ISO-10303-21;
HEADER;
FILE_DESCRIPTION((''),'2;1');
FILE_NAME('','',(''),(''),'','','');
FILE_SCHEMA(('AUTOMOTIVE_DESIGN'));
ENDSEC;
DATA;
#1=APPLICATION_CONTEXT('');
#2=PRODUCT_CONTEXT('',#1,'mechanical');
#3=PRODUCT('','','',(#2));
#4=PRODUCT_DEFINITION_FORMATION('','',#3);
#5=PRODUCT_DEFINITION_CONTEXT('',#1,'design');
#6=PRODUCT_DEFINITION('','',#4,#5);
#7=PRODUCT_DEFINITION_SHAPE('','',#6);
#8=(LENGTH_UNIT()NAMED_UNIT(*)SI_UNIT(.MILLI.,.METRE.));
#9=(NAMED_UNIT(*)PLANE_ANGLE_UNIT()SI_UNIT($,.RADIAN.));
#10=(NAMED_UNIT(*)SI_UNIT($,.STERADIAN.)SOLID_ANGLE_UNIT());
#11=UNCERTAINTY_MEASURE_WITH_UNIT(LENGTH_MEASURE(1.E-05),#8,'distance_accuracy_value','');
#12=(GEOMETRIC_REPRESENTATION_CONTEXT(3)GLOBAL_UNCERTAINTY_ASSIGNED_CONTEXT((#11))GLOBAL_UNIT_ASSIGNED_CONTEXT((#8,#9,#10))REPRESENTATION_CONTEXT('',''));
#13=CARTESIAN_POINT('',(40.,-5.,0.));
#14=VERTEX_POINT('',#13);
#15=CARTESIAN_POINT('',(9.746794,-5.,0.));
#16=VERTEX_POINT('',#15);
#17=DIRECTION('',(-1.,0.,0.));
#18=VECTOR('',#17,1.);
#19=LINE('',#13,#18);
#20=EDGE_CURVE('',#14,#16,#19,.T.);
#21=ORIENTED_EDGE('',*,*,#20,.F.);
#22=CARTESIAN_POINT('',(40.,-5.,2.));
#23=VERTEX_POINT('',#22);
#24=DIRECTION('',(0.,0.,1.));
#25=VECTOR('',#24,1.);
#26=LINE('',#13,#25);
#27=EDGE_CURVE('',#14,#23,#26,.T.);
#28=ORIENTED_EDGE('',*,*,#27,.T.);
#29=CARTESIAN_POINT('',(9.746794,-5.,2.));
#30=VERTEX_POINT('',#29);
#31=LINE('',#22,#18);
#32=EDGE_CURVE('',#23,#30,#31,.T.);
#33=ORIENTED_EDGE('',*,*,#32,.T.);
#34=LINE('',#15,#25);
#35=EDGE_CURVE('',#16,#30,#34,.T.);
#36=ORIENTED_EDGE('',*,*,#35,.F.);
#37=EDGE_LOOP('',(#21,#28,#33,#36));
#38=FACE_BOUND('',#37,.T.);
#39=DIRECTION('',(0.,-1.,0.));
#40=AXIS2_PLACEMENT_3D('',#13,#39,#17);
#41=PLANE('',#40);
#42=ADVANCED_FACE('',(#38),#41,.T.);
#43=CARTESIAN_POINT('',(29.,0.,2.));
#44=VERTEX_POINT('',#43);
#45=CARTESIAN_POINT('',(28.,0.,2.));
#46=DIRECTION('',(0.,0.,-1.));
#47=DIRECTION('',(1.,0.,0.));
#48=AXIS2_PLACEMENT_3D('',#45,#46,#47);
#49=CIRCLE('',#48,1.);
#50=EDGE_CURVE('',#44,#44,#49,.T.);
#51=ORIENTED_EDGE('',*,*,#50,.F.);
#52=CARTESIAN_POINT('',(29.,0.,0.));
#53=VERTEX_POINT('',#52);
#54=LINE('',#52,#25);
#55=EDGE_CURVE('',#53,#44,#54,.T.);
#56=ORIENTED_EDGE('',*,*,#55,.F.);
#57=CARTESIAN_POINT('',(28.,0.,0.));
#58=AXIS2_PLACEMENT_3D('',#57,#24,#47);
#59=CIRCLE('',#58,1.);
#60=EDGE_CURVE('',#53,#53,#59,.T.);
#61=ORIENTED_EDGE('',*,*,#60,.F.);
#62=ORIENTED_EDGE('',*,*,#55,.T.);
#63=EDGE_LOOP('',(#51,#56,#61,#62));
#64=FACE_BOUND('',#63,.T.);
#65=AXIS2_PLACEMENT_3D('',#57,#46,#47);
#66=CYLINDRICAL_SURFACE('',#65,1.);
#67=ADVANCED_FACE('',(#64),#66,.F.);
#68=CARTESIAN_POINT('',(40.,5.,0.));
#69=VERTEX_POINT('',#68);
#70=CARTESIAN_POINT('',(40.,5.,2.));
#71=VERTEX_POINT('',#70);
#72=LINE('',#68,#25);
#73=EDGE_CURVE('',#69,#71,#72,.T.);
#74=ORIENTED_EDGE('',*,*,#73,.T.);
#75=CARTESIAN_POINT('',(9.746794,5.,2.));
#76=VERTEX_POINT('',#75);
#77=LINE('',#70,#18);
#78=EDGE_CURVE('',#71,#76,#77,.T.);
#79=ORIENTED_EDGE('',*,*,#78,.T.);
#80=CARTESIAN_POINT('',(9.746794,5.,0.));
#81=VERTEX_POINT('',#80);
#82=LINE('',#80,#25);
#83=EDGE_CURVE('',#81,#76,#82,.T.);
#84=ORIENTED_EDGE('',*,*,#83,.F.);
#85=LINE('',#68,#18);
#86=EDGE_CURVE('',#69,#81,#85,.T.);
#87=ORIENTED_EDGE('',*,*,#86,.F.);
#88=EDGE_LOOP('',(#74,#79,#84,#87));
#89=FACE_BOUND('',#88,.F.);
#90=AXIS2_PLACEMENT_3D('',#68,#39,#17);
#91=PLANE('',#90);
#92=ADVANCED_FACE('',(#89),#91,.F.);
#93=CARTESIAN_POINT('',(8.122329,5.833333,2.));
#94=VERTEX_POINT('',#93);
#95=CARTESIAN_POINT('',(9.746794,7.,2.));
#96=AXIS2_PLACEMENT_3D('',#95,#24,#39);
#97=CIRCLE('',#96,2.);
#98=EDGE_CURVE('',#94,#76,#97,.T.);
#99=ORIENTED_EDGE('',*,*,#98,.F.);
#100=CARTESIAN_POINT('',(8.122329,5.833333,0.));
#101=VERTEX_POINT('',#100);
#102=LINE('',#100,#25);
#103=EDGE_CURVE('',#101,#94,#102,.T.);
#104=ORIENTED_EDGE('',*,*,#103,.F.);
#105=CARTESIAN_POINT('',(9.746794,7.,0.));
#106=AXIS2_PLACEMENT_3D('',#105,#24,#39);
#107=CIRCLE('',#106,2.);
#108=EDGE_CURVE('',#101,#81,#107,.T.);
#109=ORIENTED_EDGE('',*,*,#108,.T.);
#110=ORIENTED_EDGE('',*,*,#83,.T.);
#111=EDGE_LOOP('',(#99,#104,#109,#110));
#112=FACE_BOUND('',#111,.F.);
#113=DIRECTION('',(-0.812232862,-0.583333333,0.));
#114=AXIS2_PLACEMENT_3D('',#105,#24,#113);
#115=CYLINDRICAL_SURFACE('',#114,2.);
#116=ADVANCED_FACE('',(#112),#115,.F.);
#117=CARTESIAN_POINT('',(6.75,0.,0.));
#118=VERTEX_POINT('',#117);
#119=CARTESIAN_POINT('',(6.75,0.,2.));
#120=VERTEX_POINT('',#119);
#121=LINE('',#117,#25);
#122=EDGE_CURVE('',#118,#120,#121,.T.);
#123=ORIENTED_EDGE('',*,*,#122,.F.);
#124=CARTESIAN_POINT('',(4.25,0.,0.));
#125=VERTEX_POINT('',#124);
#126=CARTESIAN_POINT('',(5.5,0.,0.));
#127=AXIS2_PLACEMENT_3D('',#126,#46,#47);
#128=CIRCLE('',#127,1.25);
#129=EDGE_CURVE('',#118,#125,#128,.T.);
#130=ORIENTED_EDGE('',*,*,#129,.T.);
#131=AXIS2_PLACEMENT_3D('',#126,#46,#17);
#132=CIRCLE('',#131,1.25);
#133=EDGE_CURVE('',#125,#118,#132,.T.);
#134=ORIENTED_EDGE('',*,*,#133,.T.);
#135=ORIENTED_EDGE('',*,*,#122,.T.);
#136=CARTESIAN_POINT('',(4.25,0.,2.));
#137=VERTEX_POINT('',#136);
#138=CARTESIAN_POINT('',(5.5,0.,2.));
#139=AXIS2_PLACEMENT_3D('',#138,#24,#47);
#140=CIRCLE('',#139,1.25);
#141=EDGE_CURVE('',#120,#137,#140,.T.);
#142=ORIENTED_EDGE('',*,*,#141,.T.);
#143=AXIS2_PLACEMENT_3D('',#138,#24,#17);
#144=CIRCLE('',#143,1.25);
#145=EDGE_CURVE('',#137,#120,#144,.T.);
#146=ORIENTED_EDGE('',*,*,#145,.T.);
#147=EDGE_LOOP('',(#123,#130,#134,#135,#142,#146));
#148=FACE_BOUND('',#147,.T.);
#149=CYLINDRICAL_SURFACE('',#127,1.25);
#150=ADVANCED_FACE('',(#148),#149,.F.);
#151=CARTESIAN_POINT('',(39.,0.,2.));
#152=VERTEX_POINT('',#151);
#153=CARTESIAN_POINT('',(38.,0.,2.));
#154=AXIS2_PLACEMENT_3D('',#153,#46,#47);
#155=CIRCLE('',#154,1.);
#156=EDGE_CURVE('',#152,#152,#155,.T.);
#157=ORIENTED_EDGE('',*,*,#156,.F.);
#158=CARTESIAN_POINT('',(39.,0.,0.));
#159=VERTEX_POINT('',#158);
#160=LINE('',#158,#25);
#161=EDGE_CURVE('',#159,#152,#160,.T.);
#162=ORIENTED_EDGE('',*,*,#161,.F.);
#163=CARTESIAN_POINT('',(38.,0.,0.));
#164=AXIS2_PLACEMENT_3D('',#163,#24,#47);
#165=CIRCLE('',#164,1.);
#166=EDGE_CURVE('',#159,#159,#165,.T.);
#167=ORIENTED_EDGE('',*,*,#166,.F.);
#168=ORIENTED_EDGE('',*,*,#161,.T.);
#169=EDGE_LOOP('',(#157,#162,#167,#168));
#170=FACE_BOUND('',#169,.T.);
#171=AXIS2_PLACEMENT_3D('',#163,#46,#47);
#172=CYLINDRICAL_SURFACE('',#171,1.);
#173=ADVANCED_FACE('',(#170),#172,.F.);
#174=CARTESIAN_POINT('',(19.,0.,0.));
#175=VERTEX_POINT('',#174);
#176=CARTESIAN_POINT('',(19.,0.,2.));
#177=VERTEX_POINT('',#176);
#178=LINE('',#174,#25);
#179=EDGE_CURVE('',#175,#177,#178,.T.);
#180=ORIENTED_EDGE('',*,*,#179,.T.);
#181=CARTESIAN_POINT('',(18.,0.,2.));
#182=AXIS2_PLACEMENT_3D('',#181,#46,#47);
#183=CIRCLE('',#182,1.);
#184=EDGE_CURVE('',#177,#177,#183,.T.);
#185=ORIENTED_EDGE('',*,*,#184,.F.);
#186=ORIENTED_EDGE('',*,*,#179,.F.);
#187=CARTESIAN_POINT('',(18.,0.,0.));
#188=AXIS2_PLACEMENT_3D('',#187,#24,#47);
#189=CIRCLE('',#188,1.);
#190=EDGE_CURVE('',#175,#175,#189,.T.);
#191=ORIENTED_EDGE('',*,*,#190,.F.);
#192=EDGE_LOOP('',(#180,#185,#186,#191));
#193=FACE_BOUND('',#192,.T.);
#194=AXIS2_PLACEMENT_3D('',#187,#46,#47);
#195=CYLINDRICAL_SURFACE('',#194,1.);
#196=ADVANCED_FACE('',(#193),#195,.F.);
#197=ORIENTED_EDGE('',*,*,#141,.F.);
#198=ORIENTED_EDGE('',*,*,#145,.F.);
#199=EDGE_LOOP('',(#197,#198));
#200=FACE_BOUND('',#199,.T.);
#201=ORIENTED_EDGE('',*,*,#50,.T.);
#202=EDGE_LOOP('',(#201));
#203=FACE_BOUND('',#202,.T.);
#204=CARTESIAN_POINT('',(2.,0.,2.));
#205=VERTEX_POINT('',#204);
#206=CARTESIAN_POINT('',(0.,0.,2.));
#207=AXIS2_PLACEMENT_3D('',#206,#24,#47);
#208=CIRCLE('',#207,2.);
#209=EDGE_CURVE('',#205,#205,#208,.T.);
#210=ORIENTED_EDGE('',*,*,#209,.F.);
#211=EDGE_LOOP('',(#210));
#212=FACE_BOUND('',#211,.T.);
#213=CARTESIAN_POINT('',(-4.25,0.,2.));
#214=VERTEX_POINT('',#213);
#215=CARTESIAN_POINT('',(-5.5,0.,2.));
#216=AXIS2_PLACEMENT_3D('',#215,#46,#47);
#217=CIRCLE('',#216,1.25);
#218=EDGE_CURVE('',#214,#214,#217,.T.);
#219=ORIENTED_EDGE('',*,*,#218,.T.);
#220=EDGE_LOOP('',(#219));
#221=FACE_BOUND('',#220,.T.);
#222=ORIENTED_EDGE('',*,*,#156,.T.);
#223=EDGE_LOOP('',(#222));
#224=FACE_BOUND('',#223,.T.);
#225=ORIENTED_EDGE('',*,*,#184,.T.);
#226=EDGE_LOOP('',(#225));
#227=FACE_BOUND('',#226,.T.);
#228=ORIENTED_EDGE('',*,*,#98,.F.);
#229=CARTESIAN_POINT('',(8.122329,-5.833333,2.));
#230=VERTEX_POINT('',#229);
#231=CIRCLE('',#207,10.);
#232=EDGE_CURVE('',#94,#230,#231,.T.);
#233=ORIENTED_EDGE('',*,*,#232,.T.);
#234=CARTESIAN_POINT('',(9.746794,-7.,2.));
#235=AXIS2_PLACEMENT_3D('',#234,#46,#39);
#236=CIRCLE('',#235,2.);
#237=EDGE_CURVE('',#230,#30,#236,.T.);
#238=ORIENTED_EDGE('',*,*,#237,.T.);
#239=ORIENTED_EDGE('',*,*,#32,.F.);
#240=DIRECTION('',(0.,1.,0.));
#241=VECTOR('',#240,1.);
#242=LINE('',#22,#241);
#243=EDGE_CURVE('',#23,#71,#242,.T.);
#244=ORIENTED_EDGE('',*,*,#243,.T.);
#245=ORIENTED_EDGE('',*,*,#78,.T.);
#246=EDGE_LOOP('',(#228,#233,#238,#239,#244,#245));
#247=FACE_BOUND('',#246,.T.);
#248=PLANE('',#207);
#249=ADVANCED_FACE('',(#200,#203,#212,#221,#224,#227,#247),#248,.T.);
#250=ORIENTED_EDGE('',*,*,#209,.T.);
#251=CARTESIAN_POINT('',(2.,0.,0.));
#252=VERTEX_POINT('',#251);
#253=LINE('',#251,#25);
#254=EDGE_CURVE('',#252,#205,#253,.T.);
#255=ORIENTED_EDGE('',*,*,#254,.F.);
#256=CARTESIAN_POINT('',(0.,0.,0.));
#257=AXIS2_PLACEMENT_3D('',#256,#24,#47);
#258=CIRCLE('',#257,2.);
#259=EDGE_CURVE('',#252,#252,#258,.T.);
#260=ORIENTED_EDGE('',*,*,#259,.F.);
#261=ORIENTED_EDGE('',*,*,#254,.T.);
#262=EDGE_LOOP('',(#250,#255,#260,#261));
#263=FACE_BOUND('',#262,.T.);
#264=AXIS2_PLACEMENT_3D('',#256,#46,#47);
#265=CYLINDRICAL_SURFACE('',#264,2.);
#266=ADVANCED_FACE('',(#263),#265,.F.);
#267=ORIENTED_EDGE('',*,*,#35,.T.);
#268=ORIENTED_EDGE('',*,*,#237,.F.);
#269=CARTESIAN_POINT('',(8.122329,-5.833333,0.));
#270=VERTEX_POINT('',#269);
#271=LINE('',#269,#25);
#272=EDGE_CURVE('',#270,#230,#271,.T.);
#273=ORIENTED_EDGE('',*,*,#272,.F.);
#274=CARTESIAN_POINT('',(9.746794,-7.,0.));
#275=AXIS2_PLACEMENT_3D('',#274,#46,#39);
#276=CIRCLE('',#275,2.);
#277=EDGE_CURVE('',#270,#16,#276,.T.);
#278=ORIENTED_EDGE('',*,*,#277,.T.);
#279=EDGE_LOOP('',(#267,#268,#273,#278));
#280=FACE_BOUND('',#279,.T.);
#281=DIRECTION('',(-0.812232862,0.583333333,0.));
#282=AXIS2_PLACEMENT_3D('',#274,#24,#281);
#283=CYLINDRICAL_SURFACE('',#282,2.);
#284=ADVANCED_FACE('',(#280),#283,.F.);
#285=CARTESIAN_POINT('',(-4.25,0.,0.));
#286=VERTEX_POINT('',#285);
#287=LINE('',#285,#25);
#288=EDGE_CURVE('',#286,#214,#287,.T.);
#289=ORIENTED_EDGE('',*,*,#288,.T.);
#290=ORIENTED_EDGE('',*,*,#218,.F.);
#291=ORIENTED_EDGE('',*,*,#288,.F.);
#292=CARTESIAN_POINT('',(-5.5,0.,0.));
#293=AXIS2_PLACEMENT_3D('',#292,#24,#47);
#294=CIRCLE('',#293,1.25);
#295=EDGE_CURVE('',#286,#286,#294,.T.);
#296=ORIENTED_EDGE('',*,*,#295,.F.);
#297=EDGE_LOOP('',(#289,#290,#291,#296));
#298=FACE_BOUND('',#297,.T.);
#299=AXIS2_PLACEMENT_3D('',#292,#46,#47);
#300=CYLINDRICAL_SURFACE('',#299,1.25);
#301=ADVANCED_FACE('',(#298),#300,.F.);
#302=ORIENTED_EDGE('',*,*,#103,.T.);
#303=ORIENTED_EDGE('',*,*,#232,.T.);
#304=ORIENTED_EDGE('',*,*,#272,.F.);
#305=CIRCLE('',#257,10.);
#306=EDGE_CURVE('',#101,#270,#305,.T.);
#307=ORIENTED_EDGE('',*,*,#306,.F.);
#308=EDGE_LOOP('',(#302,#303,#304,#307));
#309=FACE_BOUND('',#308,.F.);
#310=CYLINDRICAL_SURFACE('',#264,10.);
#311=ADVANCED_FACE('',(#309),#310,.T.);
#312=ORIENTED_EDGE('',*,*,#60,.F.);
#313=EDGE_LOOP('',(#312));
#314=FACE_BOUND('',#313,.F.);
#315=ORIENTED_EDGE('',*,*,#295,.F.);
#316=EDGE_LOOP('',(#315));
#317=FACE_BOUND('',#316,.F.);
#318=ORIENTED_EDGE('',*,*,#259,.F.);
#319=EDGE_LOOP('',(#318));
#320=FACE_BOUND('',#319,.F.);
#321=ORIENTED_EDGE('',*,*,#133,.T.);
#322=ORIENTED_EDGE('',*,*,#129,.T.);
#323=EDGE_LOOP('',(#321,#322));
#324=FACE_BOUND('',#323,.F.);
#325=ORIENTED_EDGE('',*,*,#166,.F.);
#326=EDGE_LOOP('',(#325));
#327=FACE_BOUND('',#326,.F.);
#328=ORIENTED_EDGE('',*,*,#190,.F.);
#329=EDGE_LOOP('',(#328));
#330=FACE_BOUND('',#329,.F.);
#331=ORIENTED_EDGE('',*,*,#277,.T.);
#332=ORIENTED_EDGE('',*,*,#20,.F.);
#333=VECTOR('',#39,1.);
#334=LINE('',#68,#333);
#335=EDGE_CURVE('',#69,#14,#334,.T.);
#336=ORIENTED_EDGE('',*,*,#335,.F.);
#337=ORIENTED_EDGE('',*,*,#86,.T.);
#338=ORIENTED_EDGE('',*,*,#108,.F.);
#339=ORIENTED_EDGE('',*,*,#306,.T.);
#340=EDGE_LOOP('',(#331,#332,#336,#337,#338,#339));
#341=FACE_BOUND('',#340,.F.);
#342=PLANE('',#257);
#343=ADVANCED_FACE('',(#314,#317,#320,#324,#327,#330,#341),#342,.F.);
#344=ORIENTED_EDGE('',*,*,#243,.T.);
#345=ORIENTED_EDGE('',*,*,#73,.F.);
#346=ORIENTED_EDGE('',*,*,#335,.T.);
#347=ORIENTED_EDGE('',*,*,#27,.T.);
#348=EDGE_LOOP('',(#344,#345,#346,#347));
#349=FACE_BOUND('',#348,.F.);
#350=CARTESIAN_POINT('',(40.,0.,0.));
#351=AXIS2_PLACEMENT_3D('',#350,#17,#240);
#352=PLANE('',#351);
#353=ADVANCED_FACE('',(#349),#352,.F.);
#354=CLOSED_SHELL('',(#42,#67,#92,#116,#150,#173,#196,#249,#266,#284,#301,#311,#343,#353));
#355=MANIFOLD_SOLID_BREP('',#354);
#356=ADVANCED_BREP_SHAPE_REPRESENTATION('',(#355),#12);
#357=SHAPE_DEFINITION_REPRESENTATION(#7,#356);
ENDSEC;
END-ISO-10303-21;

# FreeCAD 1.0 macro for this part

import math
import FreeCAD as App
import Part
import Sketcher
from FreeCAD import Vector


def edges_at(feature, points):
    """Names of the edges that pass closest to the given points."""
    edges = feature.Shape.Edges
    near = lambda p: min(range(len(edges)), key=lambda i: edges[i].distToShape(Part.Vertex(*p))[0])
    return sorted({f"Edge{near(p) + 1}" for p in points})

doc = App.newDocument("Part")
params = doc.addObject("Spreadsheet::Sheet", "Params")
for row, (alias, value) in enumerate([
    ("sketch1_diameter", "4 mm"),
    ("sketch1_diameter2", "2 mm"),
    ("sketch1_radius", "10 mm"),
    ("sketch1_diameter3", "2.5 mm"),
    ("pad1_length", "2 mm"),
    ("fillet_radius", "2 mm"),
], start=1):
    params.set(f"A{row}", alias)
    params.set(f"B{row}", "=" + value)
    params.setAlias(f"B{row}", alias)

body = doc.addObject("PartDesign::Body", "Body")

sketch1 = doc.addObject("Sketcher::SketchObject", "Sketch")
body.addObject(sketch1)
sketch1.AttachmentSupport = (doc.XY_Plane, [""])
sketch1.MapMode = "FlatFace"
sketch1.addGeometry(Part.ArcOfCircle(Part.Circle(Vector(0, 0, 0), Vector(0, 0, 1), 10), math.radians(30), math.radians(330)), False)
sketch1.addGeometry(Part.LineSegment(Vector(8.7, -5, 0), Vector(40, -5, 0)), False)
sketch1.addGeometry(Part.LineSegment(Vector(40, -5, 0), Vector(40, 5, 0)), False)
sketch1.addGeometry(Part.LineSegment(Vector(40, 5, 0), Vector(8.7, 5, 0)), False)
sketch1.addGeometry(Part.ArcOfCircle(Part.Circle(Vector(5.5, 0, 0), Vector(0, 0, 1), 1.2), math.radians(0), math.radians(180)), False)
sketch1.addGeometry(Part.ArcOfCircle(Part.Circle(Vector(5.5, 0, 0), Vector(0, 0, 1), 1.2), math.radians(180), math.radians(360)), False)
sketch1.addGeometry(Part.Circle(Vector(-5.5, 0, 0), Vector(0, 0, 1), 1.2), False)
sketch1.addGeometry(Part.Circle(Vector(0, 0, 0), Vector(0, 0, 1), 2), False)
sketch1.addGeometry(Part.Circle(Vector(18, 0, 0), Vector(0, 0, 1), 1), False)
sketch1.addGeometry(Part.Circle(Vector(28, 0, 0), Vector(0, 0, 1), 1), False)
sketch1.addGeometry(Part.Circle(Vector(38, 0, 0), Vector(0, 0, 1), 1), False)
sketch1.addConstraint(Sketcher.Constraint("Coincident", 0, 2, 1, 1))
sketch1.addConstraint(Sketcher.Constraint("Coincident", 1, 2, 2, 1))
sketch1.addConstraint(Sketcher.Constraint("Coincident", 2, 2, 3, 1))
sketch1.addConstraint(Sketcher.Constraint("Coincident", 3, 2, 0, 1))
sketch1.addConstraint(Sketcher.Constraint("Tangent", 4, 1, 5, 2))
sketch1.addConstraint(Sketcher.Constraint("Coincident", 5, 1, 4, 2))
sketch1.addConstraint(Sketcher.Constraint("Horizontal", 1))
sketch1.addConstraint(Sketcher.Constraint("Vertical", 2))
sketch1.addConstraint(Sketcher.Constraint("Horizontal", 3))
sketch1.addConstraint(Sketcher.Constraint("Coincident", 0, 3, -1, 1))
sketch1.addConstraint(Sketcher.Constraint("Coincident", 7, 3, -1, 1))
sketch1.addConstraint(Sketcher.Constraint("Equal", 5, 6))
sketch1.addConstraint(Sketcher.Constraint("Equal", 8, 9))
sketch1.addConstraint(Sketcher.Constraint("Equal", 9, 10))
sketch1.addConstraint(Sketcher.Constraint("Symmetric", 4, 3, 6, 3, -1, 1))
sketch1.addConstraint(Sketcher.Constraint("PointOnObject", 4, 3, -1))
sketch1.addConstraint(Sketcher.Constraint("PointOnObject", 8, 3, -1))
sketch1.addConstraint(Sketcher.Constraint("PointOnObject", 9, 3, -1))
sketch1.addConstraint(Sketcher.Constraint("PointOnObject", 10, 3, -1))
sketch1.addConstraint(Sketcher.Constraint("PointOnObject", 4, 1, -1))
sketch1.addConstraint(Sketcher.Constraint("PointOnObject", 5, 1, -1))
sketch1.addConstraint(Sketcher.Constraint("Vertical", 0, 2, 3, 2))
sketch1.addConstraint(Sketcher.Constraint("Diameter", 7, 4.0))
sketch1.addConstraint(Sketcher.Constraint("Diameter", 8, 2.0))
sketch1.addConstraint(Sketcher.Constraint("Radius", 0, 10.0))
sketch1.addConstraint(Sketcher.Constraint("Diameter", 6, 2.5))
sketch1.addConstraint(Sketcher.Constraint("DistanceY", 0, 2, -1, 1, 5.0))
sketch1.addConstraint(Sketcher.Constraint("DistanceX", -1, 1, 1, 2, 40.0))
sketch1.addConstraint(Sketcher.Constraint("DistanceX", 6, 3, 4, 3, 11.0))
sketch1.addConstraint(Sketcher.Constraint("DistanceX", 8, 3, 10, 3, 20.0))
sketch1.addConstraint(Sketcher.Constraint("DistanceX", 10, 3, 1, 2, 2.0))
sketch1.addConstraint(Sketcher.Constraint("DistanceX", -1, 1, 9, 3, 28.0))
sketch1.setExpression("Constraints[22]", "Params.sketch1_diameter")
sketch1.setExpression("Constraints[23]", "Params.sketch1_diameter2")
sketch1.setExpression("Constraints[24]", "Params.sketch1_radius")
sketch1.setExpression("Constraints[25]", "Params.sketch1_diameter3")
pad1 = doc.addObject("PartDesign::Pad", "Pad")
body.addObject(pad1)
pad1.Profile = sketch1
pad1.setExpression("Length", "Params.pad1_length")
doc.recompute()

fillet = doc.addObject("PartDesign::Fillet", "Fillet")
body.addObject(fillet)
fillet.Base = (pad1, edges_at(pad1, [(8.66, 5, 1), (8.66, -5, 1)]))
fillet.setExpression("Radius", "Params.fillet_radius")

doc.recompute()
